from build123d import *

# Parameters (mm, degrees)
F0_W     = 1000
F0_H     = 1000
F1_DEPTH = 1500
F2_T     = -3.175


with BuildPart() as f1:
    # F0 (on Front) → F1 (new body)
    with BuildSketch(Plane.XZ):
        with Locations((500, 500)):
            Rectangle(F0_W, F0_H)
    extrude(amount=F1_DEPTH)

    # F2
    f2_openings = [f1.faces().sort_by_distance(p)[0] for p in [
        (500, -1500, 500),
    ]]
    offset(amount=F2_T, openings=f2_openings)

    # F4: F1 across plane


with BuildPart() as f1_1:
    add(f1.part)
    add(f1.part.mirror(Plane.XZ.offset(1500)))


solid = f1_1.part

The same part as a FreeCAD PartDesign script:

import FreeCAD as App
import Part
import Sketcher

V = App.Vector
Q = App.Units.Quantity


def faces_at(feature, points):
    """Names of the faces that lie closest to the given points."""
    faces = feature.Shape.Faces
    near = lambda p: min(range(len(faces)), key=lambda i: faces[i].distToShape(Part.Vertex(*p))[0])
    return sorted({f"Face{near(p) + 1}" for p in points})


def add_polygon(sketch, points):
    """Adds a closed chain of lines whose ends are joined by coincident constraints."""
    first, n = sketch.GeometryCount, len(points)
    for a, b in zip(points, points[1:] + points[:1]):
        sketch.addGeometry(Part.LineSegment(App.Vector(*a, 0), App.Vector(*b, 0)), False)
    for i in range(n):
        sketch.addConstraint(Sketcher.Constraint("Coincident", first + i, 2, first + (i + 1) % n, 1))

doc = App.newDocument("Part")
params = doc.addObject("Spreadsheet::Sheet", "Params")
for row, (alias, value) in enumerate([
    ("sketch1_width", "1000 mm"),
    ("pad1_length", "1500 mm"),
    ("thickness_wall", "3.175 mm"),
], start=1):
    params.set(f"A{row}", alias)
    params.set(f"B{row}", "=" + value)
    params.setAlias(f"B{row}", alias)

body = doc.addObject("PartDesign::Body", "Body")

sketch1 = body.newObject("Sketcher::SketchObject", "Sketch")
sketch1.AttachmentSupport = (doc.getObject("XZ_Plane"), [""])
sketch1.MapMode = "FlatFace"
add_polygon(sketch1, [(0, 1000), (0, 0), (1000, 0), (1000, 1000)])
sketch1.addConstraint([
    Sketcher.Constraint("Vertical", 0),
    Sketcher.Constraint("Horizontal", 1),
    Sketcher.Constraint("Vertical", 2),
    Sketcher.Constraint("Horizontal", 3),
    Sketcher.Constraint("Coincident", 0, 2, -1, 1),
    Sketcher.Constraint("Equal", 3, 0),
    Sketcher.Constraint("DistanceX", 1, 1, 1, 2, Q("1000 mm")),
])
sketch1.setExpression("Constraints[10]", "Params.sketch1_width")
pad1 = body.newObject("PartDesign::Pad", "Pad")
pad1.Profile = sketch1
pad1.setExpression("Length", "Params.pad1_length")
doc.recompute()

thickness = body.newObject("PartDesign::Thickness", "Thickness")
thickness.Base = (pad1, faces_at(pad1, [(500, -1500, 500)]))
thickness.setExpression("Value", "Params.thickness_wall")
thickness.Reversed = True
thickness.Join = "Arc"
body2 = doc.addObject("PartDesign::Body", "Body001")
doc.recompute()

body2.BaseFeature = body
doc.recompute()

mirroring = doc.addObject("Part::Mirroring", "Mirroring")
mirroring.Source = body
mirroring.Base = V(0, -1500, 0)
mirroring.Normal = V(0, -1, 0)
body3 = doc.addObject("PartDesign::Body", "Body002")
body3.BaseFeature = mirroring
boolean = body2.newObject("PartDesign::Boolean", "Boolean")
boolean.Type = "Fuse"
boolean.addObjects([body3])
doc.recompute()
mirroring.Visibility = False

doc.recompute()
